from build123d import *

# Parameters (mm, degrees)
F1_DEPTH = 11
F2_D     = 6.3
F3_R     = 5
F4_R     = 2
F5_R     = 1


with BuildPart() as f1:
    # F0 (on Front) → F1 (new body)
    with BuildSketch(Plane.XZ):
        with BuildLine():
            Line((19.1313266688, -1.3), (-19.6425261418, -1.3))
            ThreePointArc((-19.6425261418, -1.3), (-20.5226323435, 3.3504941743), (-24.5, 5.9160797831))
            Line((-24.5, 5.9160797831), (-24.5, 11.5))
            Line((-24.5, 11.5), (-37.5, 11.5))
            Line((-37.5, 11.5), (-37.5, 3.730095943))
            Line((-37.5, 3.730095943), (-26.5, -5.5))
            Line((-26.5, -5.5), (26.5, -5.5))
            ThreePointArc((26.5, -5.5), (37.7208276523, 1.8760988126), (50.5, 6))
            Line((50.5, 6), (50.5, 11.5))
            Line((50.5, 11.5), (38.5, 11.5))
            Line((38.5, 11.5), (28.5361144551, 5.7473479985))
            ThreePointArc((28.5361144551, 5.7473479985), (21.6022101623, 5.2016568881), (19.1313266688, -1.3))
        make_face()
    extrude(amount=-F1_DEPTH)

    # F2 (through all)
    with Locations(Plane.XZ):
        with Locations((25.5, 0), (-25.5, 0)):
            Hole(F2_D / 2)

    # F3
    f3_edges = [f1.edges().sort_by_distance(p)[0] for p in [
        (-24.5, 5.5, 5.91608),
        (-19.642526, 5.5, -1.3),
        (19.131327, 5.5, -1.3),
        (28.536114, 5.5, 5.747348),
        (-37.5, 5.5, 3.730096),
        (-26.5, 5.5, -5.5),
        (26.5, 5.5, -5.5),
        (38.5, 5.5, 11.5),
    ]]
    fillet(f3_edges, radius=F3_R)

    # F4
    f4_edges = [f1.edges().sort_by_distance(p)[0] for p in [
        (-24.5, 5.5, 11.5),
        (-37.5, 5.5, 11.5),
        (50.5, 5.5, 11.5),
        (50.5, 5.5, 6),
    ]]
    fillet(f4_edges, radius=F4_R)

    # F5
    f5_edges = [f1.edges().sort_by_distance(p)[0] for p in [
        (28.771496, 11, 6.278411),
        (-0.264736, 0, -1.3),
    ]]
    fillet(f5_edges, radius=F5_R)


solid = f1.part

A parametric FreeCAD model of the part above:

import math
import FreeCAD as App
import Part
import Sketcher
Q = App.Units.Quantity


def edges_at(feature, points):
    """Names of the edges that pass closest to the given points."""
    edges = feature.Shape.Edges
    near = lambda p: min(range(len(edges)), key=lambda i: edges[i].distToShape(Part.Vertex(*p))[0])
    return sorted({f"Edge{near(p) + 1}" for p in points})

doc = App.newDocument("Part")
body = doc.addObject("PartDesign::Body", "Body")

# Sketch on XZ plane
sketch1 = body.newObject("Sketcher::SketchObject", "Sketch")
sketch1.AttachmentSupport = (doc.getObject("XZ_Plane"), [""])
sketch1.MapMode = "FlatFace"
sketch1.addGeometry([
    Part.LineSegment(App.Vector(19, -1, 0), App.Vector(-20, -1, 0)),  # 0
    Part.ArcOfCircle(Part.Circle(App.Vector(-26, 0, 0), App.Vector(0, 0, 1), 6), math.radians(-13), math.radians(80)),  # 1
    Part.LineSegment(App.Vector(-24, 6, 0), App.Vector(-24, 12, 0)),  # 2
    Part.LineSegment(App.Vector(-24, 12, 0), App.Vector(-38, 12, 0)),  # 3
    Part.LineSegment(App.Vector(-38, 12, 0), App.Vector(-38, 4, 0)),  # 4
    Part.LineSegment(App.Vector(-38, 4, 0), App.Vector(-26, -6, 0)),  # 5
    Part.LineSegment(App.Vector(-26, -6, 0), App.Vector(26, -6, 0)),  # 6
    Part.ArcOfCircle(Part.Circle(App.Vector(59, -43, 0), App.Vector(0, 0, 1), 50), math.radians(100), math.radians(131)),  # 7
    Part.LineSegment(App.Vector(50, 6, 0), App.Vector(50, 12, 0)),  # 8
    Part.LineSegment(App.Vector(50, 12, 0), App.Vector(38, 12, 0)),  # 9
    Part.LineSegment(App.Vector(38, 12, 0), App.Vector(29, 6, 0)),  # 10
    Part.ArcOfCircle(Part.Circle(App.Vector(26, 0, 0), App.Vector(0, 0, 1), 6), math.radians(62), math.radians(192)),  # 11
], False)
sketch1.addConstraint([
    Sketcher.Constraint("Coincident", 0, 2, 1, 1),
    Sketcher.Constraint("Coincident", 1, 2, 2, 1),
    Sketcher.Constraint("Coincident", 2, 2, 3, 1),
    Sketcher.Constraint("Coincident", 3, 2, 4, 1),
    Sketcher.Constraint("Coincident", 4, 2, 5, 1),
    Sketcher.Constraint("Coincident", 5, 2, 6, 1),
    Sketcher.Constraint("Coincident", 6, 2, 7, 2),
    Sketcher.Constraint("Coincident", 7, 1, 8, 1),
    Sketcher.Constraint("Coincident", 8, 2, 9, 1),
    Sketcher.Constraint("Coincident", 9, 2, 10, 1),
    Sketcher.Constraint("Coincident", 10, 2, 11, 1),
    Sketcher.Constraint("Coincident", 11, 2, 0, 1),
    Sketcher.Constraint("Horizontal", 0),
    Sketcher.Constraint("Vertical", 2),
    Sketcher.Constraint("Horizontal", 3),
    Sketcher.Constraint("Vertical", 4),
    Sketcher.Constraint("Horizontal", 6),
    Sketcher.Constraint("Vertical", 8),
    Sketcher.Constraint("Horizontal", 9),
    Sketcher.Constraint("Symmetric", 1, 3, 11, 3, -1, 1),
    Sketcher.Constraint("PointOnObject", 1, 3, -1),
    Sketcher.Constraint("Horizontal", 3, 2, 8, 2),
    Sketcher.Constraint("Radius", 1, Q("6 mm")),
    Sketcher.Constraint("Radius", 7, Q("50 mm")),
    Sketcher.Constraint("Radius", 11, Q("6.5 mm")),
    Sketcher.Constraint("DistanceX", 3, 2, 3, 1, Q("13 mm")),
    Sketcher.Constraint("DistanceX", 6, 1, 6, 2, Q("53 mm")),
    Sketcher.Constraint("DistanceX", 9, 2, 9, 1, Q("12 mm")),
    Sketcher.Constraint("Angle", 5, Q("-40 deg")),
    Sketcher.Constraint("Angle", 10, Q("-150 deg")),
    Sketcher.Constraint("DistanceY", 8, 1, 8, 2, Q("5.5 mm")),
    Sketcher.Constraint("DistanceY", -1, 1, 7, 1, Q("6 mm")),
    Sketcher.Constraint("DistanceX", 1, 3, 11, 3, Q("51 mm")),
    Sketcher.Constraint("DistanceX", 1, 3, 1, 2, Q("1 mm")),
    Sketcher.Constraint("DistanceX", 5, 2, 1, 3, Q("1 mm")),
    Sketcher.Constraint("DistanceY", 5, 2, 2, 2, Q("17 mm")),
    Sketcher.Constraint("DistanceX", 11, 3, 7, 1, Q("25 mm")),
    Sketcher.Constraint("DistanceY", 0, 2, -1, 1, Q("1.3 mm")),
])
pad1 = body.newObject("PartDesign::Pad", "Pad")
pad1.Profile = sketch1
pad1.Length = 11
pad1.Reversed = True

# Sketch on XZ plane
sketch2 = body.newObject("Sketcher::SketchObject", "Sketch001")
sketch2.AttachmentSupport = (doc.getObject("XZ_Plane"), [""])
sketch2.MapMode = "FlatFace"
sketch2.addGeometry([
    Part.Circle(App.Vector(25.5, 0, 0), App.Vector(0, 0, 1), 3.1),
    Part.Circle(App.Vector(-25.5, 0, 0), App.Vector(0, 0, 1), 3.1),
], False)
sketch2.addConstraint([
    Sketcher.Constraint("Equal", 0, 1),
    Sketcher.Constraint("Symmetric", 0, 3, 1, 3, -1, 1),
    Sketcher.Constraint("PointOnObject", 0, 3, -1),
    Sketcher.Constraint("Diameter", 0, Q("6.3 mm")),
    Sketcher.Constraint("DistanceX", 1, 3, 0, 3, Q("51 mm")),
])
doc.recompute()
hole = body.newObject("PartDesign::Hole", "Hole")
hole.Profile = sketch2
hole.ThreadType = "None"
hole.Diameter = 6.3
hole.DepthType = "ThroughAll"
doc.recompute()

fillet = body.newObject("PartDesign::Fillet", "Fillet")
fillet.Base = (hole, edges_at(hole, [
    (-24.5, 5.5, 5.916),
    (-19.643, 5.5, -1.3),
    (19.131, 5.5, -1.3),
    (28.536, 5.5, 5.747),
    (-37.5, 5.5, 3.73),
    (-26.5, 5.5, -5.5),
    (26.5, 5.5, -5.5),
    (38.5, 5.5, 11.5),
]))
fillet.Radius = 5
doc.recompute()

fillet2 = body.newObject("PartDesign::Fillet", "Fillet001")
fillet2.Base = (fillet, edges_at(fillet, [
    (-24.5, 5.5, 11.5),
    (-37.5, 5.5, 11.5),
    (50.5, 5.5, 11.5),
    (50.5, 5.5, 6),
]))
fillet2.Radius = 2
doc.recompute()

fillet3 = body.newObject("PartDesign::Fillet", "Fillet002")
fillet3.Base = (fillet2, edges_at(fillet2, [(28.771, 11, 6.278), (-0.265, 0, -1.3)]))
fillet3.Radius = 1

doc.recompute()
